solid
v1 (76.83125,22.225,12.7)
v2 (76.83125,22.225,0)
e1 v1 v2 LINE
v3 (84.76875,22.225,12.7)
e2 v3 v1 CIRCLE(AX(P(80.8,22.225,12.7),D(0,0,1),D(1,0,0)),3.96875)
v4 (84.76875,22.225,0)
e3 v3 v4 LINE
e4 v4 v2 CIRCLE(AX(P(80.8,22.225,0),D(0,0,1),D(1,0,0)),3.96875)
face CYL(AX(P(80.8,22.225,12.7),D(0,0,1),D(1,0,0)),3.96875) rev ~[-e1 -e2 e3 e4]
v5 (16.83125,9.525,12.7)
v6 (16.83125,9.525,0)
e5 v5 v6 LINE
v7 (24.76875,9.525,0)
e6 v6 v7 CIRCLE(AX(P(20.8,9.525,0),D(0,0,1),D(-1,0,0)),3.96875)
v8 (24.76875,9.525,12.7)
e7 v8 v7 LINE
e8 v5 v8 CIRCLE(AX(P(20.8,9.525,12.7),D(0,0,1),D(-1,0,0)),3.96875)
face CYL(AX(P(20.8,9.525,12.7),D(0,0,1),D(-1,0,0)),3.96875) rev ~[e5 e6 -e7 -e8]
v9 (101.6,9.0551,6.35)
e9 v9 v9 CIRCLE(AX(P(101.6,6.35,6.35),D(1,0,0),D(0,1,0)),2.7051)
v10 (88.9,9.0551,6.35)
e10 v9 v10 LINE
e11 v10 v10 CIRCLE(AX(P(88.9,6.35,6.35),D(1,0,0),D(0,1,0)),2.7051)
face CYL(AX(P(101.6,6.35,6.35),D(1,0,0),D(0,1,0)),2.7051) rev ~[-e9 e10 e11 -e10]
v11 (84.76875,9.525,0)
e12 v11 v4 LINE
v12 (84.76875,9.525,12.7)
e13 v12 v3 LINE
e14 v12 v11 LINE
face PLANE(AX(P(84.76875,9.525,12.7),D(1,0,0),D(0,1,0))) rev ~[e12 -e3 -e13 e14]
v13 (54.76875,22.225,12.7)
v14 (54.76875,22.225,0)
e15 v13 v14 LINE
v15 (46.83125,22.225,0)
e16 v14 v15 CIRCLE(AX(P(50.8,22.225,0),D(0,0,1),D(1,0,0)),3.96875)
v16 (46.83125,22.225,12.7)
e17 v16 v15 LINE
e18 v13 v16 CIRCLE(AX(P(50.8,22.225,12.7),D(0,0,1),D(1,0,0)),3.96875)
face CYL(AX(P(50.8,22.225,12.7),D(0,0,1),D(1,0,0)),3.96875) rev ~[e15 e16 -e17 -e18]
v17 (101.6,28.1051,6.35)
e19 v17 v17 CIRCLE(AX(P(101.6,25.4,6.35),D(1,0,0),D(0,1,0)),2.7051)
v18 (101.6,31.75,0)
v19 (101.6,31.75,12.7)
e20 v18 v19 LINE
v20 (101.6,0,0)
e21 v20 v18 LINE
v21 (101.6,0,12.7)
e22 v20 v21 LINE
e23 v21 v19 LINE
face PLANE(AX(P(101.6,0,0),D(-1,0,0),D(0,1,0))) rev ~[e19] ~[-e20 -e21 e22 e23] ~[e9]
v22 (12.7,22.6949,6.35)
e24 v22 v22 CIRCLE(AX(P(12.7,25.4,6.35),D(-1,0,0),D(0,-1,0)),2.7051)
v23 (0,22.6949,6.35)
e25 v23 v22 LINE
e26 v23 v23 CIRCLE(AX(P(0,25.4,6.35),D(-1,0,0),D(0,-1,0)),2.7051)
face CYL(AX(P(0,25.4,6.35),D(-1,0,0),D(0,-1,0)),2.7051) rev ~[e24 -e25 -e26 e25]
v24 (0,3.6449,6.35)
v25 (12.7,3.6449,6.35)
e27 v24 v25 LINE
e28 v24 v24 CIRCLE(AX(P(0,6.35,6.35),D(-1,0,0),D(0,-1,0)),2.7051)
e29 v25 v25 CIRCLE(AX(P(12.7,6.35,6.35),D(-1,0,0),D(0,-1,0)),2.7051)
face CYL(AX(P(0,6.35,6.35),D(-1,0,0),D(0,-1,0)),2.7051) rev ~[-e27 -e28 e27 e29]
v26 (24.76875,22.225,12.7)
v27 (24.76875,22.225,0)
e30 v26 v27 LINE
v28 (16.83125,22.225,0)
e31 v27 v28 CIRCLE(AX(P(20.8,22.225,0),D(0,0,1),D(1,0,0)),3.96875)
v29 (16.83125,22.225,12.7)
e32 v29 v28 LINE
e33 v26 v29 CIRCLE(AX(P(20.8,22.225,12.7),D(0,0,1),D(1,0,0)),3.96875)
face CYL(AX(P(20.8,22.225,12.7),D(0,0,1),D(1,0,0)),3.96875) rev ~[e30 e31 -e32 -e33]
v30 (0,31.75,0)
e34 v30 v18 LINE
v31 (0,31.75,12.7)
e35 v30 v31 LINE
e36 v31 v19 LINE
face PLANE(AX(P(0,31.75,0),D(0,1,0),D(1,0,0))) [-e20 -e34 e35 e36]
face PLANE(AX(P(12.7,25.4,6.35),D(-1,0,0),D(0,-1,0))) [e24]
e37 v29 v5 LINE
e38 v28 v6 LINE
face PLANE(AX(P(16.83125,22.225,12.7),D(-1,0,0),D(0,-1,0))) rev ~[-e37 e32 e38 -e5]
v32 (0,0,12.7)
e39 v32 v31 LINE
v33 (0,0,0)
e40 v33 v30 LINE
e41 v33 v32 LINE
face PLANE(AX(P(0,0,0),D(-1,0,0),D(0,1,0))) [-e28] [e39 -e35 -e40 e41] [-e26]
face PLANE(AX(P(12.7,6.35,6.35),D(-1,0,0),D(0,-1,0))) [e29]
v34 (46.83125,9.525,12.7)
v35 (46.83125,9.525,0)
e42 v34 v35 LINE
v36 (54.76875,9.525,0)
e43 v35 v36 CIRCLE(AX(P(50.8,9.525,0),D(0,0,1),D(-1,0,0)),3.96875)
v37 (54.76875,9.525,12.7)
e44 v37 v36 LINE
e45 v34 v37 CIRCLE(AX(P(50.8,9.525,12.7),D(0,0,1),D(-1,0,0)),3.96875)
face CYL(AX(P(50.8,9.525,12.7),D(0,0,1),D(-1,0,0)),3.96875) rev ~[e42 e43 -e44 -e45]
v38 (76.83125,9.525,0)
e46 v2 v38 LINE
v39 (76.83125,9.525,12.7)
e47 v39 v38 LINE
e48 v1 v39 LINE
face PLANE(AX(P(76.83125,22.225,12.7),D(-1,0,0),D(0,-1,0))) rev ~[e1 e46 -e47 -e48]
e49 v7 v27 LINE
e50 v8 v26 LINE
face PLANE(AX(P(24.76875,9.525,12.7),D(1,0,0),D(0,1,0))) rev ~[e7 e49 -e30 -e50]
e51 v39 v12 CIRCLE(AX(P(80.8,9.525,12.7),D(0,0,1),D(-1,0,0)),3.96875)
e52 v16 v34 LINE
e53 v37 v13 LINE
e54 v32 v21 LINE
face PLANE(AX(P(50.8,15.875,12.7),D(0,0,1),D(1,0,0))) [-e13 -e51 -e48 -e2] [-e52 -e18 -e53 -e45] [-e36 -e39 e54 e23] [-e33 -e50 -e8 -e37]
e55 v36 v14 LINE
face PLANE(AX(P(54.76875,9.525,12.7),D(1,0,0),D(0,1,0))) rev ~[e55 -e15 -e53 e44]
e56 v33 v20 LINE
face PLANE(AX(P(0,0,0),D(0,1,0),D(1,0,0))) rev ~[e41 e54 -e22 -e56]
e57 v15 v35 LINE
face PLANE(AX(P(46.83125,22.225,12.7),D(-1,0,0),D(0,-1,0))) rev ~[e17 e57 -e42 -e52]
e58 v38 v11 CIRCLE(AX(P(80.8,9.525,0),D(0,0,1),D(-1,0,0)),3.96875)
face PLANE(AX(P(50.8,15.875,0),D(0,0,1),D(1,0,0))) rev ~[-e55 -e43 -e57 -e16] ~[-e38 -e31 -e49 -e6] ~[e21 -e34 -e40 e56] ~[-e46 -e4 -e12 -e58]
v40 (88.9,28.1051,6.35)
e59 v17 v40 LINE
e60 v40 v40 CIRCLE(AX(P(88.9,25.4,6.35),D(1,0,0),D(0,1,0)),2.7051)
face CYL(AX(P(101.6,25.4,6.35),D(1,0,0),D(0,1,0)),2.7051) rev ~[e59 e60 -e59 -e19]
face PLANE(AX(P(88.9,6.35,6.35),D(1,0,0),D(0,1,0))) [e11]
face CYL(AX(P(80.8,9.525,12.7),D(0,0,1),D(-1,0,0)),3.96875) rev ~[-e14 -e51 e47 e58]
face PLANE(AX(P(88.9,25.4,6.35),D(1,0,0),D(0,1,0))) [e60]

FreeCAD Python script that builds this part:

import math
import FreeCAD as App
import Part
import Sketcher
from FreeCAD import Vector
Q = App.Units.Quantity

doc = App.newDocument("Part")
params = doc.addObject("Spreadsheet::Sheet", "Params")
for row, (alias, value) in enumerate([
    ("sketch1_width", "4 in"),
    ("sketch1_height", "1.25 in"),
    ("pad1_length", "0.5 in"),
    ("sketch2_height", "0.5 in"),
    ("sketch2_radius", "0.15625 in"),
    ("pocket1_length", "1 in"),
    ("sketch3_diameter", "0.213 in"),
    ("pocket2_length", "0.5 in"),
    ("sketch4_diameter", "0.213 in"),
    ("pocket3_length", "0.5 in"),
], start=1):
    params.set(f"A{row}", alias)
    params.set(f"B{row}", "=" + value)
    params.setAlias(f"B{row}", alias)

body = doc.addObject("PartDesign::Body", "Body")

sketch1 = body.newObject("Sketcher::SketchObject", "Sketch")
sketch1.AttachmentSupport = (doc.getObject("XY_Plane"), [""])
sketch1.MapMode = "FlatFace"
sketch1.addGeometry([
    Part.LineSegment(Vector(0, 32, 0), Vector(0, 0, 0)),
    Part.LineSegment(Vector(0, 0, 0), Vector(102, 0, 0)),
    Part.LineSegment(Vector(102, 0, 0), Vector(102, 32, 0)),
    Part.LineSegment(Vector(102, 32, 0), Vector(0, 32, 0)),
], False)
sketch1.addConstraint([
    Sketcher.Constraint("Coincident", 0, 2, 1, 1),
    Sketcher.Constraint("Coincident", 1, 2, 2, 1),
    Sketcher.Constraint("Coincident", 2, 2, 3, 1),
    Sketcher.Constraint("Coincident", 3, 2, 0, 1),
    Sketcher.Constraint("Vertical", 0),
    Sketcher.Constraint("Horizontal", 1),
    Sketcher.Constraint("Vertical", 2),
    Sketcher.Constraint("Horizontal", 3),
    Sketcher.Constraint("Coincident", 0, 2, -1, 1),
    Sketcher.Constraint("DistanceX", 1, 1, 1, 2, Q("4 in")),
    Sketcher.Constraint("DistanceY", 0, 2, 0, 1, Q("1.25 in")),
])
sketch1.setExpression("Constraints[9]", "Params.sketch1_width")
sketch1.setExpression("Constraints[10]", "Params.sketch1_height")
pad1 = body.newObject("PartDesign::Pad", "Pad")
pad1.Profile = sketch1
pad1.setExpression("Length", "Params.pad1_length")

sketch2 = body.newObject("Sketcher::SketchObject", "Sketch001")
sketch2.AttachmentSupport = (doc.getObject("XY_Plane"), [""])
sketch2.MapMode = "FlatFace"
sketch2.AttachmentOffset = App.Placement(Vector(0, 0, 0.5 * 25.4), App.Rotation())
sketch2.addGeometry([
    Part.ArcOfCircle(Part.Circle(Vector(20.8, 22.2, 0), Vector(0, 0, 1), 4), math.radians(0), math.radians(180)),
    Part.LineSegment(Vector(16.8, 22.2, 0), Vector(16.8, 9.5, 0)),
    Part.ArcOfCircle(Part.Circle(Vector(20.8, 9.5, 0), Vector(0, 0, 1), 4), math.radians(180), math.radians(360)),
    Part.LineSegment(Vector(24.8, 9.5, 0), Vector(24.8, 22.2, 0)),
    Part.ArcOfCircle(Part.Circle(Vector(80.8, 22.2, 0), Vector(0, 0, 1), 4), math.radians(0), math.radians(180)),
    Part.LineSegment(Vector(76.8, 22.2, 0), Vector(76.8, 9.5, 0)),
    Part.ArcOfCircle(Part.Circle(Vector(80.8, 9.5, 0), Vector(0, 0, 1), 4), math.radians(180), math.radians(360)),
    Part.LineSegment(Vector(84.8, 9.5, 0), Vector(84.8, 22.2, 0)),
    Part.ArcOfCircle(Part.Circle(Vector(50.8, 22.2, 0), Vector(0, 0, 1), 4), math.radians(0), math.radians(180)),
    Part.LineSegment(Vector(46.8, 22.2, 0), Vector(46.8, 9.5, 0)),
    Part.ArcOfCircle(Part.Circle(Vector(50.8, 9.5, 0), Vector(0, 0, 1), 4), math.radians(180), math.radians(360)),
    Part.LineSegment(Vector(54.8, 9.5, 0), Vector(54.8, 22.2, 0)),
], False)
sketch2.addConstraint([
    Sketcher.Constraint("Tangent", 0, 2, 1, 1),
    Sketcher.Constraint("Tangent", 1, 2, 2, 1),
    Sketcher.Constraint("Tangent", 2, 2, 3, 1),
    Sketcher.Constraint("Tangent", 3, 2, 0, 1),
    Sketcher.Constraint("Tangent", 4, 2, 5, 1),
    Sketcher.Constraint("Tangent", 5, 2, 6, 1),
    Sketcher.Constraint("Tangent", 6, 2, 7, 1),
    Sketcher.Constraint("Tangent", 7, 2, 4, 1),
    Sketcher.Constraint("Tangent", 8, 2, 9, 1),
    Sketcher.Constraint("Tangent", 9, 2, 10, 1),
    Sketcher.Constraint("Tangent", 10, 2, 11, 1),
    Sketcher.Constraint("Tangent", 11, 2, 8, 1),
    Sketcher.Constraint("Vertical", 1),
    Sketcher.Constraint("Vertical", 3),
    Sketcher.Constraint("Vertical", 5),
    Sketcher.Constraint("Vertical", 7),
    Sketcher.Constraint("Vertical", 9),
    Sketcher.Constraint("Vertical", 11),
    Sketcher.Constraint("Equal", 2, 4),
    Sketcher.Constraint("Equal", 6, 8),
    Sketcher.Constraint("Horizontal", 0, 3, 4, 3),
    Sketcher.Constraint("Horizontal", 2, 3, 6, 3),
    Sketcher.Constraint("Horizontal", 4, 3, 8, 3),
    Sketcher.Constraint("Horizontal", 6, 3, 10, 3),
    Sketcher.Constraint("DistanceY", 1, 2, 1, 1, Q("0.5 in")),
    Sketcher.Constraint("DistanceX", -1, 1, 8, 3, Q("2 in")),
    Sketcher.Constraint("Radius", 0, Q("0.15625 in")),
    Sketcher.Constraint("DistanceY", -1, 1, 0, 3, Q("0.875 in")),
    Sketcher.Constraint("DistanceX", -1, 1, 0, 3, Q("20.8 mm")),
    Sketcher.Constraint("DistanceX", -1, 1, 4, 3, Q("80.8 mm")),
])
sketch2.setExpression("Constraints[24]", "Params.sketch2_height")
sketch2.setExpression("Constraints[26]", "Params.sketch2_radius")
pocket1 = body.newObject("PartDesign::Pocket", "Pocket")
pocket1.Profile = sketch2
pocket1.setExpression("Length", "Params.pocket1_length")

sketch3 = body.newObject("Sketcher::SketchObject", "Sketch002")
sketch3.AttachmentSupport = (doc.getObject("YZ_Plane"), [""])
sketch3.MapMode = "FlatFace"
sketch3.AttachmentOffset = App.Placement(Vector(0, 0, 4 * 25.4), App.Rotation())
sketch3.addGeometry([
    Part.Circle(Vector(6.3, 6.3, 0), Vector(0, 0, 1), 2.7),
    Part.Circle(Vector(25.4, 6.3, 0), Vector(0, 0, 1), 2.7),
], False)
sketch3.addConstraint([
    Sketcher.Constraint("Equal", 0, 1),
    Sketcher.Constraint("Horizontal", 0, 3, 1, 3),
    Sketcher.Constraint("Diameter", 0, Q("0.213 in")),
    Sketcher.Constraint("DistanceX", -1, 1, 1, 3, Q("1 in")),
    Sketcher.Constraint("DistanceX", -1, 1, 0, 3, Q("0.25 in")),
    Sketcher.Constraint("DistanceY", -1, 1, 0, 3, Q("0.25 in")),
])
sketch3.setExpression("Constraints[2]", "Params.sketch3_diameter")
pocket2 = body.newObject("PartDesign::Pocket", "Pocket001")
pocket2.Profile = sketch3
pocket2.setExpression("Length", "Params.pocket2_length")

sketch4 = body.newObject("Sketcher::SketchObject", "Sketch003")
sketch4.AttachmentSupport = (doc.getObject("YZ_Plane"), [""])
sketch4.MapMode = "FlatFace"
sketch4.addGeometry([
    Part.Circle(Vector(25.4, 6.3, 0), Vector(0, 0, 1), 2.7),
    Part.Circle(Vector(6.3, 6.3, 0), Vector(0, 0, 1), 2.7),
], False)
sketch4.addConstraint([
    Sketcher.Constraint("Equal", 0, 1),
    Sketcher.Constraint("Horizontal", 0, 3, 1, 3),
    Sketcher.Constraint("Diameter", 0, Q("0.213 in")),
    Sketcher.Constraint("DistanceX", -1, 1, 0, 3, Q("1 in")),
    Sketcher.Constraint("DistanceY", -1, 1, 0, 3, Q("0.25 in")),
    Sketcher.Constraint("DistanceX", -1, 1, 1, 3, Q("0.25 in")),
])
sketch4.setExpression("Constraints[2]", "Params.sketch4_diameter")
pocket3 = body.newObject("PartDesign::Pocket", "Pocket002")
pocket3.Profile = sketch4
pocket3.setExpression("Length", "Params.pocket3_length")
pocket3.Reversed = True

doc.recompute()
